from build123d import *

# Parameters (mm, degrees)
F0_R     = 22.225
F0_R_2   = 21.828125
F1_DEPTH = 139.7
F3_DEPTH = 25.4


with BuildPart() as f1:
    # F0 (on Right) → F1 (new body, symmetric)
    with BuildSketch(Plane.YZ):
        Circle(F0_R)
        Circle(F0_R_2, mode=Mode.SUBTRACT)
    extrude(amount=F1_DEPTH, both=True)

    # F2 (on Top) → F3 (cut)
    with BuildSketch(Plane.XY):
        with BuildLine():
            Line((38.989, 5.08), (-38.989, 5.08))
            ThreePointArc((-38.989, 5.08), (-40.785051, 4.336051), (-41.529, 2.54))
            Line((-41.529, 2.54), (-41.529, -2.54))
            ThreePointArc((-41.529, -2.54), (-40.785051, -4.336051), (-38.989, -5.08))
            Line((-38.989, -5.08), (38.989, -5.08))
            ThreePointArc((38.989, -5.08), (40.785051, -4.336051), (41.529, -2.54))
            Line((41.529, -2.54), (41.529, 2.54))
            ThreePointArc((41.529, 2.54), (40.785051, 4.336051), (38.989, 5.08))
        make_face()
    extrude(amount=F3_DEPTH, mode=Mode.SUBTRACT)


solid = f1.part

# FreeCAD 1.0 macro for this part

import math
import FreeCAD as App
import Part
import Sketcher
from FreeCAD import Vector
Q = App.Units.Quantity

doc = App.newDocument("Part")
params = doc.addObject("Spreadsheet::Sheet", "Params")
for row, (alias, value) in enumerate([
    ("sketch1_diameter", "1.75 in"),
    ("sketch1_diameter2", "1.71875 in"),
    ("pad1_length", "11 in"),
    ("sketch2_radius", "0.1 in"),
    ("sketch2_height", "0.2 in"),
    ("sketch2_width", "3.07 in"),
    ("pocket1_length", "1 in"),
], start=1):
    params.set(f"A{row}", alias)
    params.set(f"B{row}", "=" + value)
    params.setAlias(f"B{row}", alias)

body = doc.addObject("PartDesign::Body", "Body")

# Sketch on YZ plane
sketch1 = doc.addObject("Sketcher::SketchObject", "Sketch")
body.addObject(sketch1)
sketch1.AttachmentSupport = (doc.YZ_Plane, [""])
sketch1.MapMode = "FlatFace"
sketch1.addGeometry([
    Part.Circle(Vector(0, 0, 0), Vector(0, 0, 1), 22.225),
    Part.Circle(Vector(0, 0, 0), Vector(0, 0, 1), 21.828125),
], False)
sketch1.addConstraint([
    Sketcher.Constraint("Coincident", 0, 3, -1, 1),
    Sketcher.Constraint("Coincident", 1, 3, -1, 1),
    Sketcher.Constraint("Diameter", 0, Q("1.75 in")),
    Sketcher.Constraint("Diameter", 1, Q("1.71875 in")),
])
sketch1.setExpression("Constraints[2]", "Params.sketch1_diameter")
sketch1.setExpression("Constraints[3]", "Params.sketch1_diameter2")
pad1 = doc.addObject("PartDesign::Pad", "Pad")
body.addObject(pad1)
pad1.Profile = sketch1
pad1.setExpression("Length", "Params.pad1_length")
pad1.Midplane = True

# Sketch on XY plane
sketch2 = doc.addObject("Sketcher::SketchObject", "Sketch001")
body.addObject(sketch2)
sketch2.AttachmentSupport = (doc.XY_Plane, [""])
sketch2.MapMode = "FlatFace"
sketch2.addGeometry([
    Part.LineSegment(Vector(38.989, 5.08, 0), Vector(-38.989, 5.08, 0)),  # 0
    Part.ArcOfCircle(Part.Circle(Vector(-38.988999, 2.539999, 0), Vector(0, 0, 1), 2.540001), math.radians(90.000017), math.radians(179.999983)),  # 1
    Part.LineSegment(Vector(-41.529, 2.54, 0), Vector(-41.529, -2.54, 0)),  # 2
    Part.ArcOfCircle(Part.Circle(Vector(-38.988999, -2.539999, 0), Vector(0, 0, 1), 2.540001), math.radians(-179.999983), math.radians(-90.000017)),  # 3
    Part.LineSegment(Vector(-38.989, -5.08, 0), Vector(38.989, -5.08, 0)),  # 4
    Part.ArcOfCircle(Part.Circle(Vector(38.988999, -2.539999, 0), Vector(0, 0, 1), 2.540001), math.radians(-89.999983), math.radians(-0.000017)),  # 5
    Part.LineSegment(Vector(41.529, -2.54, 0), Vector(41.529, 2.54, 0)),  # 6
    Part.ArcOfCircle(Part.Circle(Vector(38.988999, 2.539999, 0), Vector(0, 0, 1), 2.540001), math.radians(0.000017), math.radians(89.999983)),  # 7
], False)
sketch2.addConstraint([
    Sketcher.Constraint("Tangent", 0, 2, 1, 1),
    Sketcher.Constraint("Tangent", 1, 2, 2, 1),
    Sketcher.Constraint("Tangent", 2, 2, 3, 1),
    Sketcher.Constraint("Tangent", 3, 2, 4, 1),
    Sketcher.Constraint("Tangent", 4, 2, 5, 1),
    Sketcher.Constraint("Tangent", 5, 2, 6, 1),
    Sketcher.Constraint("Tangent", 6, 2, 7, 1),
    Sketcher.Constraint("Tangent", 7, 2, 0, 1),
    Sketcher.Constraint("Horizontal", 0),
    Sketcher.Constraint("Vertical", 2),
    Sketcher.Constraint("Horizontal", 4),
    Sketcher.Constraint("Vertical", 6),
    Sketcher.Constraint("Equal", 1, 3),
    Sketcher.Constraint("Equal", 3, 5),
    Sketcher.Constraint("Equal", 5, 7),
    Sketcher.Constraint("Symmetric", 1, 3, 5, 3, -1, 1),
    Sketcher.Constraint("Radius", 1, Q("0.1 in")),
    Sketcher.Constraint("DistanceY", 2, 2, 2, 1, Q("0.2 in")),
    Sketcher.Constraint("DistanceX", 0, 2, 0, 1, Q("3.07 in")),
])
sketch2.setExpression("Constraints[16]", "Params.sketch2_radius")
sketch2.setExpression("Constraints[17]", "Params.sketch2_height")
sketch2.setExpression("Constraints[18]", "Params.sketch2_width")
pocket1 = doc.addObject("PartDesign::Pocket", "Pocket")
body.addObject(pocket1)
pocket1.Profile = sketch2
pocket1.setExpression("Length", "Params.pocket1_length")
pocket1.Reversed = True

doc.recompute()
